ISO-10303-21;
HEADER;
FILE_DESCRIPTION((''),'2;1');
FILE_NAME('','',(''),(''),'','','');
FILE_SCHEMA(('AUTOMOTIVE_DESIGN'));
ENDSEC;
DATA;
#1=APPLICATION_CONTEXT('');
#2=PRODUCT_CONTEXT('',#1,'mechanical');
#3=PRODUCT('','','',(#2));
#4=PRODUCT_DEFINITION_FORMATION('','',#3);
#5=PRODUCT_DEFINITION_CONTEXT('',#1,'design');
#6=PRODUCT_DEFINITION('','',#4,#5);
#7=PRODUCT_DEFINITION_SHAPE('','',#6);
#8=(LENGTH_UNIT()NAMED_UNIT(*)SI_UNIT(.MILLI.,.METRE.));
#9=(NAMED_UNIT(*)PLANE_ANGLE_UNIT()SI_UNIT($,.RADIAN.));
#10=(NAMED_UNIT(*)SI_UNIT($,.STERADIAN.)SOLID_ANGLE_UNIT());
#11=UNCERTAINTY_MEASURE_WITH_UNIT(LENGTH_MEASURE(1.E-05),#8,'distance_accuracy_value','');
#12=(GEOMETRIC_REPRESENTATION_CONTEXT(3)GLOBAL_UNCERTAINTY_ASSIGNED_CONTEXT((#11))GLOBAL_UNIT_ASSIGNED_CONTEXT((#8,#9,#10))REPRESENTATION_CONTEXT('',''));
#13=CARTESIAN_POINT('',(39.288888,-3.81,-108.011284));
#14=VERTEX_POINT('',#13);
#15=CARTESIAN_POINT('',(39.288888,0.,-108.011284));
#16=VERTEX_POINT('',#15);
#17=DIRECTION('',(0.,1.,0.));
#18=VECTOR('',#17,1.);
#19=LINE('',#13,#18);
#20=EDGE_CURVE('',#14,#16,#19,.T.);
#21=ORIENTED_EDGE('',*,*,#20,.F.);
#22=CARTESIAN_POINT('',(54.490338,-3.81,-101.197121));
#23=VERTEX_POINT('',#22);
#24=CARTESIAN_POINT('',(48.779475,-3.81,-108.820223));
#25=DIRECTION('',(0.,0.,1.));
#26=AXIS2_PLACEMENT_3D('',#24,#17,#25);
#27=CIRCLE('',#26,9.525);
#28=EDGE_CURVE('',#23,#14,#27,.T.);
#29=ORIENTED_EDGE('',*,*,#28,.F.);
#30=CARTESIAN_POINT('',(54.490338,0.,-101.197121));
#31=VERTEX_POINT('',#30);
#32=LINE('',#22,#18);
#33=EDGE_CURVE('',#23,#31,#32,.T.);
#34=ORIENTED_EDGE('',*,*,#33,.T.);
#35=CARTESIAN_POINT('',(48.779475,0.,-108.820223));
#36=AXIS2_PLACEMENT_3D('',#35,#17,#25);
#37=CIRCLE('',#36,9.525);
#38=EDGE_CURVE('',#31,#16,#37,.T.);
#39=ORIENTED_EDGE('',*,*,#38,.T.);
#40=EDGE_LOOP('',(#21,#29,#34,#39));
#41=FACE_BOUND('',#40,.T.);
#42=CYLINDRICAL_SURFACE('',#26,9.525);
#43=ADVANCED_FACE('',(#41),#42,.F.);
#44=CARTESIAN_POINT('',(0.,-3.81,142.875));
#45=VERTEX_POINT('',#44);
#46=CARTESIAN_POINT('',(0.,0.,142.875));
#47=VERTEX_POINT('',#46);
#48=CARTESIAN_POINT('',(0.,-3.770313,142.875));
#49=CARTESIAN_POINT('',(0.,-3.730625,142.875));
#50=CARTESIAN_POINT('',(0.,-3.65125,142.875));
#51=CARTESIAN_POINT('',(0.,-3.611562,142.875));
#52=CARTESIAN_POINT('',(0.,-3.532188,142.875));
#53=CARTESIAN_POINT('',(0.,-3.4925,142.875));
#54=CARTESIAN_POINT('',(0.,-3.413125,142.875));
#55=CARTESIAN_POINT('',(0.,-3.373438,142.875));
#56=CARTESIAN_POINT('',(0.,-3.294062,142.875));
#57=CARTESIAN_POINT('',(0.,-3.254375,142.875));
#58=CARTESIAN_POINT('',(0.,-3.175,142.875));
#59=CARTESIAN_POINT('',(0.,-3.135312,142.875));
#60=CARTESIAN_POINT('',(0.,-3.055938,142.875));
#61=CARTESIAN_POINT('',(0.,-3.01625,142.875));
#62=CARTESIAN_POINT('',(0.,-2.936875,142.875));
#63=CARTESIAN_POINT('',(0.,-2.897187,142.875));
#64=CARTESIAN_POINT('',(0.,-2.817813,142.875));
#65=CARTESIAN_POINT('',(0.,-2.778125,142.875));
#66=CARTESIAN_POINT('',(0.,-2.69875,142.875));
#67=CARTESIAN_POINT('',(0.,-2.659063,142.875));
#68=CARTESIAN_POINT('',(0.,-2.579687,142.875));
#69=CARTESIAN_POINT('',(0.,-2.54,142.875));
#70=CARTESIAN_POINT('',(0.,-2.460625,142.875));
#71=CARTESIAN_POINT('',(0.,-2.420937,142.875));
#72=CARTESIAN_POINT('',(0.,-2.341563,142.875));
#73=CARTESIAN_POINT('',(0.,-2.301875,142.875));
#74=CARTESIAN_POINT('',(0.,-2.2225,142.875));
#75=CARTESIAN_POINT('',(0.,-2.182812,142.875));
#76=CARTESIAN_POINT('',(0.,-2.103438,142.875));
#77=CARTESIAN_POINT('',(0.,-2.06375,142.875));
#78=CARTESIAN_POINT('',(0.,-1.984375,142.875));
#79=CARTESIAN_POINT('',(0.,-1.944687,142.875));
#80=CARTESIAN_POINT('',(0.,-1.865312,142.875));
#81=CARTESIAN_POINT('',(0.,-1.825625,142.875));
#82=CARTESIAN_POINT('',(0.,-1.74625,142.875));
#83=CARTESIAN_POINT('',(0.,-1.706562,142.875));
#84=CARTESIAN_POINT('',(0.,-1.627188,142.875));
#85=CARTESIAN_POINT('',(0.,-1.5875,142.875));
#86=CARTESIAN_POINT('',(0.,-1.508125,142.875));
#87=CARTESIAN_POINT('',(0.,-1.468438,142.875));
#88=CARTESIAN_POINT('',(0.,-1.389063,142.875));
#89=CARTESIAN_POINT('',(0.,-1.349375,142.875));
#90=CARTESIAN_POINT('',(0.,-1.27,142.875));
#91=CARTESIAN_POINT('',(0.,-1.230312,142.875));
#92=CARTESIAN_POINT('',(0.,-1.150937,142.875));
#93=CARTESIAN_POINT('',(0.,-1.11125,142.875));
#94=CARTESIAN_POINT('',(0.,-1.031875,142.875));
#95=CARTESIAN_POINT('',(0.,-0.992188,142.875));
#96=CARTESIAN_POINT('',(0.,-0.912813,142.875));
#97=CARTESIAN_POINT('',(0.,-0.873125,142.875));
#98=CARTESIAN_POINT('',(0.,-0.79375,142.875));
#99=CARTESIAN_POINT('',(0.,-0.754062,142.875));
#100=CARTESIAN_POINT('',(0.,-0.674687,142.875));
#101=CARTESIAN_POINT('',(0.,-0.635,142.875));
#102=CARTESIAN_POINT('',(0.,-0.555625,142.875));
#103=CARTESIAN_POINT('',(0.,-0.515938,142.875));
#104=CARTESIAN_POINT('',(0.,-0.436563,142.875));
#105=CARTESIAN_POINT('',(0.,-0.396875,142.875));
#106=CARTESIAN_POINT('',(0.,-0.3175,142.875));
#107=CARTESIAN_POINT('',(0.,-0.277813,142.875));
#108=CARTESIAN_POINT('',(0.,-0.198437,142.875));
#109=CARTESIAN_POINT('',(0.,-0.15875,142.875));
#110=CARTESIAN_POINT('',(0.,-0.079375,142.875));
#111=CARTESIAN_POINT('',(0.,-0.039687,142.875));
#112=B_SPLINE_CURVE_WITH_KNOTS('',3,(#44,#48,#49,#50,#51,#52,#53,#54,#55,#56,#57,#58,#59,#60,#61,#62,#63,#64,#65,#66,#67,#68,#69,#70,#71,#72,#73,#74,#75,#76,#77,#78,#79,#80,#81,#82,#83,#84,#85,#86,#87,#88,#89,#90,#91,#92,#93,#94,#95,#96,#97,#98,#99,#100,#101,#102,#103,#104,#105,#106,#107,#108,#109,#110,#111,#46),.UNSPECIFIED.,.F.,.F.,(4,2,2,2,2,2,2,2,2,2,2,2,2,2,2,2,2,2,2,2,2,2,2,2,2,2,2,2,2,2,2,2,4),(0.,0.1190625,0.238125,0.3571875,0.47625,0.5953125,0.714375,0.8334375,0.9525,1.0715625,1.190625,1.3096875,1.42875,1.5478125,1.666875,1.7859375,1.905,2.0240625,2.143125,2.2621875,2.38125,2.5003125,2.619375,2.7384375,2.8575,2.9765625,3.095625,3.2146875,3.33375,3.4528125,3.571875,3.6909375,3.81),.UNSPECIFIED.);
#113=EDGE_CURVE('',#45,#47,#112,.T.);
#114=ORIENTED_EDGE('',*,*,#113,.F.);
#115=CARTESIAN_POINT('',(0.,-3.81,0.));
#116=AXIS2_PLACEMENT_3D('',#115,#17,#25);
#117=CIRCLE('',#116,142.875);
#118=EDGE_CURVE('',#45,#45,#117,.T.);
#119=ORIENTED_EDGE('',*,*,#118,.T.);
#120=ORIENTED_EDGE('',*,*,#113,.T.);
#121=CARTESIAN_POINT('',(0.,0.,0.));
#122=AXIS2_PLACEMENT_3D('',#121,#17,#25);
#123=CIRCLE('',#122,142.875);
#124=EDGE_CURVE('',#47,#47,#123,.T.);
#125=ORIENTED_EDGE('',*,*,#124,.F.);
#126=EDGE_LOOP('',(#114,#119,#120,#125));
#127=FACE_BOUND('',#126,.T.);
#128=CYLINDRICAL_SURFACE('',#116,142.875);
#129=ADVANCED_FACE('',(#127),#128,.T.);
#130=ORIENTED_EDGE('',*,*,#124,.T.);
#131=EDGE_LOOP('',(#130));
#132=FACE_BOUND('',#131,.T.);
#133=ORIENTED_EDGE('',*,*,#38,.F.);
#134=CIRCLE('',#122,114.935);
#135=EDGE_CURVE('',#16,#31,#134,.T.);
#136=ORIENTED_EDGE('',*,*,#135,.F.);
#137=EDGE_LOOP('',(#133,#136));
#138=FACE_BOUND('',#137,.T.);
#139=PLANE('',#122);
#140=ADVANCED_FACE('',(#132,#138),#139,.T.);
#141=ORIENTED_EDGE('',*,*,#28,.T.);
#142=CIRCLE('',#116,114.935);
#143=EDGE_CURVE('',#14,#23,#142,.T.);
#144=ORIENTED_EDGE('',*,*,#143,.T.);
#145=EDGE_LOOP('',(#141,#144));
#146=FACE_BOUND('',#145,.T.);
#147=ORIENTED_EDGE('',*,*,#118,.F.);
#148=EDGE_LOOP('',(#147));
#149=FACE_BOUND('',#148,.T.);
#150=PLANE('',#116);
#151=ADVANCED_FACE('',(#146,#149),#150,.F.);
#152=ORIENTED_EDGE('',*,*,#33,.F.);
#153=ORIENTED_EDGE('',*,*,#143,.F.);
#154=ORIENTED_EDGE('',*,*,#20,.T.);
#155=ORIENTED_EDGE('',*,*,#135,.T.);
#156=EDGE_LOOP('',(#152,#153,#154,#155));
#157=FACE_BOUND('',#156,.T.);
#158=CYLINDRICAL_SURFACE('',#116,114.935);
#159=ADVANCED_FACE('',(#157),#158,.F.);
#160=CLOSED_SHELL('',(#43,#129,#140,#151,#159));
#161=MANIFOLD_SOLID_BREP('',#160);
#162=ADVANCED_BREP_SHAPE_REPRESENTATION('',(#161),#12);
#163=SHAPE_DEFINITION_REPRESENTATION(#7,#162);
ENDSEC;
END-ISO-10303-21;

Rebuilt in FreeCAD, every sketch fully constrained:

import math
import FreeCAD as App
import Part
import Sketcher

V = App.Vector
Q = App.Units.Quantity

doc = App.newDocument("Part")
body = doc.addObject("PartDesign::Body", "Body")

# Sketch on XZ plane
sketch1 = body.newObject("Sketcher::SketchObject", "Sketch")
sketch1.AttachmentSupport = (doc.getObject("XZ_Plane"), [""])
sketch1.MapMode = "FlatFace"
sketch1.addGeometry([
    Part.Circle(V(0, 0, 0), V(0, 0, 1), 143),  # 0
    Part.ArcOfCircle(Part.Circle(V(49, -109, 0), V(0, 0, 1), 10), math.radians(0), math.radians(53)),  # 1
    Part.ArcOfCircle(Part.Circle(V(0, 0, 0), V(0, 0, 1), 115), math.radians(-62), math.radians(0)),  # 2
    Part.ArcOfCircle(Part.Circle(V(0, 0, 0), V(0, 0, 1), 115), math.radians(0), math.radians(290)),  # 3
    Part.ArcOfCircle(Part.Circle(V(49, -109, 0), V(0, 0, 1), 10), math.radians(175), math.radians(360)),  # 4
], False)
sketch1.addConstraint([
    Sketcher.Constraint("Coincident", 1, 2, 2, 1),
    Sketcher.Constraint("Tangent", 2, 2, 3, 1),
    Sketcher.Constraint("Coincident", 3, 2, 4, 1),
    Sketcher.Constraint("Tangent", 4, 2, 1, 1),
    Sketcher.Constraint("Coincident", 0, 3, -1, 1),
    Sketcher.Constraint("Coincident", 2, 3, -1, 1),
    Sketcher.Constraint("Equal", 2, 3),
    Sketcher.Constraint("Equal", 1, 4),
    Sketcher.Constraint("PointOnObject", 2, 2, -1),
    Sketcher.Constraint("Horizontal", 1, 3, 4, 2),
    Sketcher.Constraint("Diameter", 0, Q("11.25 in")),
    Sketcher.Constraint("Radius", 1, Q("0.375 in")),
    Sketcher.Constraint("Radius", 2, Q("4.525 in")),
    Sketcher.Constraint("DistanceY", 4, 3, 1, 2, Q("7.623101 mm")),
    Sketcher.Constraint("DistanceY", 1, 2, -1, 1, Q("101.197121 mm")),
])
pad1 = body.newObject("PartDesign::Pad", "Pad")
pad1.Profile = sketch1
pad1.Length = Q("0.15 in")

doc.recompute()
